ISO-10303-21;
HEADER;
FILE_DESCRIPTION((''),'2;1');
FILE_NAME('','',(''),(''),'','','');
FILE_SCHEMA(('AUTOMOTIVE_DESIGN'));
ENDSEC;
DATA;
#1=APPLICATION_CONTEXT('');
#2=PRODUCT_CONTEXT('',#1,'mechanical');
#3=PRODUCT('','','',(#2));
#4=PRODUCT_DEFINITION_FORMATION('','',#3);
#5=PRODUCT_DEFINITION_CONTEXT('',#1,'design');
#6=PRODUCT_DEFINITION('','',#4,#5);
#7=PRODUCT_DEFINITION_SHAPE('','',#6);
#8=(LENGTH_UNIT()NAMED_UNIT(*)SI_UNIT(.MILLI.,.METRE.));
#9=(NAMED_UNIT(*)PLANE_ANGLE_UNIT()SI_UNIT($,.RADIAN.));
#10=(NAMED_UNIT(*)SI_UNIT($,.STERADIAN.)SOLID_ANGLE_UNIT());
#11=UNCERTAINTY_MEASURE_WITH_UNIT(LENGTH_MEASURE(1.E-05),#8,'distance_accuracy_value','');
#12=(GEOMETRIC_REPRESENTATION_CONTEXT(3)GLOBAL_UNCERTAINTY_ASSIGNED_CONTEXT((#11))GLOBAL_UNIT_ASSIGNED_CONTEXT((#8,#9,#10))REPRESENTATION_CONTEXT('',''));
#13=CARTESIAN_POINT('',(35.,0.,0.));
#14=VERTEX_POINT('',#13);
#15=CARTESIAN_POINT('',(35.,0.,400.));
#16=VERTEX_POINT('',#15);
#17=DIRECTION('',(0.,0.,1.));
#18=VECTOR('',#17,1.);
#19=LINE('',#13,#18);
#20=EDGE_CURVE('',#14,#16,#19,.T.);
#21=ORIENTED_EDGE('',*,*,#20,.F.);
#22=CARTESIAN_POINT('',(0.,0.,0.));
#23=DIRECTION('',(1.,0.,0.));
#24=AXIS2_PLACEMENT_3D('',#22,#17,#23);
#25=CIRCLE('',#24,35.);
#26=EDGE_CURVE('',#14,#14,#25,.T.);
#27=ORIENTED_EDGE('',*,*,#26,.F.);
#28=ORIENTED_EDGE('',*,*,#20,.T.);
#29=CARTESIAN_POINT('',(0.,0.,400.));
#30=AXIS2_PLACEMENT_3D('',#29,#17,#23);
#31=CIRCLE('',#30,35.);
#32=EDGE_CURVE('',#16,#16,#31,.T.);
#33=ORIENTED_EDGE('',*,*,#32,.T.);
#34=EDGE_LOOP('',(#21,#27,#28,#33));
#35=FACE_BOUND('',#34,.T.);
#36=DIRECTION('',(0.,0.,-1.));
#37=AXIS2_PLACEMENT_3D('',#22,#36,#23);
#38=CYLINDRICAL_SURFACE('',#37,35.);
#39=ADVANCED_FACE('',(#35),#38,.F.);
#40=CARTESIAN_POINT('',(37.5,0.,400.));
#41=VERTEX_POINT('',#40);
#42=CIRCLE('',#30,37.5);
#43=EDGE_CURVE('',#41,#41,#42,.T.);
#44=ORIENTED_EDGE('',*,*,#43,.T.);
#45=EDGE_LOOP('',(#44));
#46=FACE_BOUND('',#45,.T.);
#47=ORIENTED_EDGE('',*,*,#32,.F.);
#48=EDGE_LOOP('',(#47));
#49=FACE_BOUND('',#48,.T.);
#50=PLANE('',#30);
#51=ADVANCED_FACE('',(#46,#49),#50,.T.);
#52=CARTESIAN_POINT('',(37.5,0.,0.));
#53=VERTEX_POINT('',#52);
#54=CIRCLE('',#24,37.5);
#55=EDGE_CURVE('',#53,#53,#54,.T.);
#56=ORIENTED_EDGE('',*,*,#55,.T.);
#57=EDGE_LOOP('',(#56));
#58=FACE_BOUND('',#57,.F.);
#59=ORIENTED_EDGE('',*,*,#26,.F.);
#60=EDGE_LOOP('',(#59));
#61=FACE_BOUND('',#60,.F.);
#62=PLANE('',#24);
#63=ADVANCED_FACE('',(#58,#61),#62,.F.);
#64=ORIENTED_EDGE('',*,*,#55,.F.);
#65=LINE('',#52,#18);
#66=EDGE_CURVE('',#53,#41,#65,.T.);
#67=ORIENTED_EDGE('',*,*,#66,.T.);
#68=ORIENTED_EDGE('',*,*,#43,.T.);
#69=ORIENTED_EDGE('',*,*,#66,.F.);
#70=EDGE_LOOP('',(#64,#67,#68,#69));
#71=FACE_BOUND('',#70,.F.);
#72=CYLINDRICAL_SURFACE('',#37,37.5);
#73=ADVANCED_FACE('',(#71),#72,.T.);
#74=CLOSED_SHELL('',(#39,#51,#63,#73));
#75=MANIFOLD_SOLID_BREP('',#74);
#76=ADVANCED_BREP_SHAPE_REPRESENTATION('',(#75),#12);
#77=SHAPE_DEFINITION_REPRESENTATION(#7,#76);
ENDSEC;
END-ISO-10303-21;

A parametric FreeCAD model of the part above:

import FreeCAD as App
import Part
import Sketcher

V = App.Vector

doc = App.newDocument("Part")
body = doc.addObject("PartDesign::Body", "Body")

# Sketch on XY plane
sketch1 = doc.addObject("Sketcher::SketchObject", "Sketch")
body.addObject(sketch1)
sketch1.AttachmentSupport = (doc.XY_Plane, [""])
sketch1.MapMode = "FlatFace"
sketch1.addGeometry([
    Part.Circle(V(0, 0, 0), V(0, 0, 1), 38),
    Part.Circle(V(0, 0, 0), V(0, 0, 1), 35),
], False)
sketch1.addConstraint([
    Sketcher.Constraint("Coincident", 0, 3, -1, 1),
    Sketcher.Constraint("Coincident", 1, 3, -1, 1),
    Sketcher.Constraint("Diameter", 0, 75.0),
    Sketcher.Constraint("Diameter", 1, 70.0),
])
pad1 = doc.addObject("PartDesign::Pad", "Pad")
body.addObject(pad1)
pad1.Profile = sketch1
pad1.Length = 400

doc.recompute()
